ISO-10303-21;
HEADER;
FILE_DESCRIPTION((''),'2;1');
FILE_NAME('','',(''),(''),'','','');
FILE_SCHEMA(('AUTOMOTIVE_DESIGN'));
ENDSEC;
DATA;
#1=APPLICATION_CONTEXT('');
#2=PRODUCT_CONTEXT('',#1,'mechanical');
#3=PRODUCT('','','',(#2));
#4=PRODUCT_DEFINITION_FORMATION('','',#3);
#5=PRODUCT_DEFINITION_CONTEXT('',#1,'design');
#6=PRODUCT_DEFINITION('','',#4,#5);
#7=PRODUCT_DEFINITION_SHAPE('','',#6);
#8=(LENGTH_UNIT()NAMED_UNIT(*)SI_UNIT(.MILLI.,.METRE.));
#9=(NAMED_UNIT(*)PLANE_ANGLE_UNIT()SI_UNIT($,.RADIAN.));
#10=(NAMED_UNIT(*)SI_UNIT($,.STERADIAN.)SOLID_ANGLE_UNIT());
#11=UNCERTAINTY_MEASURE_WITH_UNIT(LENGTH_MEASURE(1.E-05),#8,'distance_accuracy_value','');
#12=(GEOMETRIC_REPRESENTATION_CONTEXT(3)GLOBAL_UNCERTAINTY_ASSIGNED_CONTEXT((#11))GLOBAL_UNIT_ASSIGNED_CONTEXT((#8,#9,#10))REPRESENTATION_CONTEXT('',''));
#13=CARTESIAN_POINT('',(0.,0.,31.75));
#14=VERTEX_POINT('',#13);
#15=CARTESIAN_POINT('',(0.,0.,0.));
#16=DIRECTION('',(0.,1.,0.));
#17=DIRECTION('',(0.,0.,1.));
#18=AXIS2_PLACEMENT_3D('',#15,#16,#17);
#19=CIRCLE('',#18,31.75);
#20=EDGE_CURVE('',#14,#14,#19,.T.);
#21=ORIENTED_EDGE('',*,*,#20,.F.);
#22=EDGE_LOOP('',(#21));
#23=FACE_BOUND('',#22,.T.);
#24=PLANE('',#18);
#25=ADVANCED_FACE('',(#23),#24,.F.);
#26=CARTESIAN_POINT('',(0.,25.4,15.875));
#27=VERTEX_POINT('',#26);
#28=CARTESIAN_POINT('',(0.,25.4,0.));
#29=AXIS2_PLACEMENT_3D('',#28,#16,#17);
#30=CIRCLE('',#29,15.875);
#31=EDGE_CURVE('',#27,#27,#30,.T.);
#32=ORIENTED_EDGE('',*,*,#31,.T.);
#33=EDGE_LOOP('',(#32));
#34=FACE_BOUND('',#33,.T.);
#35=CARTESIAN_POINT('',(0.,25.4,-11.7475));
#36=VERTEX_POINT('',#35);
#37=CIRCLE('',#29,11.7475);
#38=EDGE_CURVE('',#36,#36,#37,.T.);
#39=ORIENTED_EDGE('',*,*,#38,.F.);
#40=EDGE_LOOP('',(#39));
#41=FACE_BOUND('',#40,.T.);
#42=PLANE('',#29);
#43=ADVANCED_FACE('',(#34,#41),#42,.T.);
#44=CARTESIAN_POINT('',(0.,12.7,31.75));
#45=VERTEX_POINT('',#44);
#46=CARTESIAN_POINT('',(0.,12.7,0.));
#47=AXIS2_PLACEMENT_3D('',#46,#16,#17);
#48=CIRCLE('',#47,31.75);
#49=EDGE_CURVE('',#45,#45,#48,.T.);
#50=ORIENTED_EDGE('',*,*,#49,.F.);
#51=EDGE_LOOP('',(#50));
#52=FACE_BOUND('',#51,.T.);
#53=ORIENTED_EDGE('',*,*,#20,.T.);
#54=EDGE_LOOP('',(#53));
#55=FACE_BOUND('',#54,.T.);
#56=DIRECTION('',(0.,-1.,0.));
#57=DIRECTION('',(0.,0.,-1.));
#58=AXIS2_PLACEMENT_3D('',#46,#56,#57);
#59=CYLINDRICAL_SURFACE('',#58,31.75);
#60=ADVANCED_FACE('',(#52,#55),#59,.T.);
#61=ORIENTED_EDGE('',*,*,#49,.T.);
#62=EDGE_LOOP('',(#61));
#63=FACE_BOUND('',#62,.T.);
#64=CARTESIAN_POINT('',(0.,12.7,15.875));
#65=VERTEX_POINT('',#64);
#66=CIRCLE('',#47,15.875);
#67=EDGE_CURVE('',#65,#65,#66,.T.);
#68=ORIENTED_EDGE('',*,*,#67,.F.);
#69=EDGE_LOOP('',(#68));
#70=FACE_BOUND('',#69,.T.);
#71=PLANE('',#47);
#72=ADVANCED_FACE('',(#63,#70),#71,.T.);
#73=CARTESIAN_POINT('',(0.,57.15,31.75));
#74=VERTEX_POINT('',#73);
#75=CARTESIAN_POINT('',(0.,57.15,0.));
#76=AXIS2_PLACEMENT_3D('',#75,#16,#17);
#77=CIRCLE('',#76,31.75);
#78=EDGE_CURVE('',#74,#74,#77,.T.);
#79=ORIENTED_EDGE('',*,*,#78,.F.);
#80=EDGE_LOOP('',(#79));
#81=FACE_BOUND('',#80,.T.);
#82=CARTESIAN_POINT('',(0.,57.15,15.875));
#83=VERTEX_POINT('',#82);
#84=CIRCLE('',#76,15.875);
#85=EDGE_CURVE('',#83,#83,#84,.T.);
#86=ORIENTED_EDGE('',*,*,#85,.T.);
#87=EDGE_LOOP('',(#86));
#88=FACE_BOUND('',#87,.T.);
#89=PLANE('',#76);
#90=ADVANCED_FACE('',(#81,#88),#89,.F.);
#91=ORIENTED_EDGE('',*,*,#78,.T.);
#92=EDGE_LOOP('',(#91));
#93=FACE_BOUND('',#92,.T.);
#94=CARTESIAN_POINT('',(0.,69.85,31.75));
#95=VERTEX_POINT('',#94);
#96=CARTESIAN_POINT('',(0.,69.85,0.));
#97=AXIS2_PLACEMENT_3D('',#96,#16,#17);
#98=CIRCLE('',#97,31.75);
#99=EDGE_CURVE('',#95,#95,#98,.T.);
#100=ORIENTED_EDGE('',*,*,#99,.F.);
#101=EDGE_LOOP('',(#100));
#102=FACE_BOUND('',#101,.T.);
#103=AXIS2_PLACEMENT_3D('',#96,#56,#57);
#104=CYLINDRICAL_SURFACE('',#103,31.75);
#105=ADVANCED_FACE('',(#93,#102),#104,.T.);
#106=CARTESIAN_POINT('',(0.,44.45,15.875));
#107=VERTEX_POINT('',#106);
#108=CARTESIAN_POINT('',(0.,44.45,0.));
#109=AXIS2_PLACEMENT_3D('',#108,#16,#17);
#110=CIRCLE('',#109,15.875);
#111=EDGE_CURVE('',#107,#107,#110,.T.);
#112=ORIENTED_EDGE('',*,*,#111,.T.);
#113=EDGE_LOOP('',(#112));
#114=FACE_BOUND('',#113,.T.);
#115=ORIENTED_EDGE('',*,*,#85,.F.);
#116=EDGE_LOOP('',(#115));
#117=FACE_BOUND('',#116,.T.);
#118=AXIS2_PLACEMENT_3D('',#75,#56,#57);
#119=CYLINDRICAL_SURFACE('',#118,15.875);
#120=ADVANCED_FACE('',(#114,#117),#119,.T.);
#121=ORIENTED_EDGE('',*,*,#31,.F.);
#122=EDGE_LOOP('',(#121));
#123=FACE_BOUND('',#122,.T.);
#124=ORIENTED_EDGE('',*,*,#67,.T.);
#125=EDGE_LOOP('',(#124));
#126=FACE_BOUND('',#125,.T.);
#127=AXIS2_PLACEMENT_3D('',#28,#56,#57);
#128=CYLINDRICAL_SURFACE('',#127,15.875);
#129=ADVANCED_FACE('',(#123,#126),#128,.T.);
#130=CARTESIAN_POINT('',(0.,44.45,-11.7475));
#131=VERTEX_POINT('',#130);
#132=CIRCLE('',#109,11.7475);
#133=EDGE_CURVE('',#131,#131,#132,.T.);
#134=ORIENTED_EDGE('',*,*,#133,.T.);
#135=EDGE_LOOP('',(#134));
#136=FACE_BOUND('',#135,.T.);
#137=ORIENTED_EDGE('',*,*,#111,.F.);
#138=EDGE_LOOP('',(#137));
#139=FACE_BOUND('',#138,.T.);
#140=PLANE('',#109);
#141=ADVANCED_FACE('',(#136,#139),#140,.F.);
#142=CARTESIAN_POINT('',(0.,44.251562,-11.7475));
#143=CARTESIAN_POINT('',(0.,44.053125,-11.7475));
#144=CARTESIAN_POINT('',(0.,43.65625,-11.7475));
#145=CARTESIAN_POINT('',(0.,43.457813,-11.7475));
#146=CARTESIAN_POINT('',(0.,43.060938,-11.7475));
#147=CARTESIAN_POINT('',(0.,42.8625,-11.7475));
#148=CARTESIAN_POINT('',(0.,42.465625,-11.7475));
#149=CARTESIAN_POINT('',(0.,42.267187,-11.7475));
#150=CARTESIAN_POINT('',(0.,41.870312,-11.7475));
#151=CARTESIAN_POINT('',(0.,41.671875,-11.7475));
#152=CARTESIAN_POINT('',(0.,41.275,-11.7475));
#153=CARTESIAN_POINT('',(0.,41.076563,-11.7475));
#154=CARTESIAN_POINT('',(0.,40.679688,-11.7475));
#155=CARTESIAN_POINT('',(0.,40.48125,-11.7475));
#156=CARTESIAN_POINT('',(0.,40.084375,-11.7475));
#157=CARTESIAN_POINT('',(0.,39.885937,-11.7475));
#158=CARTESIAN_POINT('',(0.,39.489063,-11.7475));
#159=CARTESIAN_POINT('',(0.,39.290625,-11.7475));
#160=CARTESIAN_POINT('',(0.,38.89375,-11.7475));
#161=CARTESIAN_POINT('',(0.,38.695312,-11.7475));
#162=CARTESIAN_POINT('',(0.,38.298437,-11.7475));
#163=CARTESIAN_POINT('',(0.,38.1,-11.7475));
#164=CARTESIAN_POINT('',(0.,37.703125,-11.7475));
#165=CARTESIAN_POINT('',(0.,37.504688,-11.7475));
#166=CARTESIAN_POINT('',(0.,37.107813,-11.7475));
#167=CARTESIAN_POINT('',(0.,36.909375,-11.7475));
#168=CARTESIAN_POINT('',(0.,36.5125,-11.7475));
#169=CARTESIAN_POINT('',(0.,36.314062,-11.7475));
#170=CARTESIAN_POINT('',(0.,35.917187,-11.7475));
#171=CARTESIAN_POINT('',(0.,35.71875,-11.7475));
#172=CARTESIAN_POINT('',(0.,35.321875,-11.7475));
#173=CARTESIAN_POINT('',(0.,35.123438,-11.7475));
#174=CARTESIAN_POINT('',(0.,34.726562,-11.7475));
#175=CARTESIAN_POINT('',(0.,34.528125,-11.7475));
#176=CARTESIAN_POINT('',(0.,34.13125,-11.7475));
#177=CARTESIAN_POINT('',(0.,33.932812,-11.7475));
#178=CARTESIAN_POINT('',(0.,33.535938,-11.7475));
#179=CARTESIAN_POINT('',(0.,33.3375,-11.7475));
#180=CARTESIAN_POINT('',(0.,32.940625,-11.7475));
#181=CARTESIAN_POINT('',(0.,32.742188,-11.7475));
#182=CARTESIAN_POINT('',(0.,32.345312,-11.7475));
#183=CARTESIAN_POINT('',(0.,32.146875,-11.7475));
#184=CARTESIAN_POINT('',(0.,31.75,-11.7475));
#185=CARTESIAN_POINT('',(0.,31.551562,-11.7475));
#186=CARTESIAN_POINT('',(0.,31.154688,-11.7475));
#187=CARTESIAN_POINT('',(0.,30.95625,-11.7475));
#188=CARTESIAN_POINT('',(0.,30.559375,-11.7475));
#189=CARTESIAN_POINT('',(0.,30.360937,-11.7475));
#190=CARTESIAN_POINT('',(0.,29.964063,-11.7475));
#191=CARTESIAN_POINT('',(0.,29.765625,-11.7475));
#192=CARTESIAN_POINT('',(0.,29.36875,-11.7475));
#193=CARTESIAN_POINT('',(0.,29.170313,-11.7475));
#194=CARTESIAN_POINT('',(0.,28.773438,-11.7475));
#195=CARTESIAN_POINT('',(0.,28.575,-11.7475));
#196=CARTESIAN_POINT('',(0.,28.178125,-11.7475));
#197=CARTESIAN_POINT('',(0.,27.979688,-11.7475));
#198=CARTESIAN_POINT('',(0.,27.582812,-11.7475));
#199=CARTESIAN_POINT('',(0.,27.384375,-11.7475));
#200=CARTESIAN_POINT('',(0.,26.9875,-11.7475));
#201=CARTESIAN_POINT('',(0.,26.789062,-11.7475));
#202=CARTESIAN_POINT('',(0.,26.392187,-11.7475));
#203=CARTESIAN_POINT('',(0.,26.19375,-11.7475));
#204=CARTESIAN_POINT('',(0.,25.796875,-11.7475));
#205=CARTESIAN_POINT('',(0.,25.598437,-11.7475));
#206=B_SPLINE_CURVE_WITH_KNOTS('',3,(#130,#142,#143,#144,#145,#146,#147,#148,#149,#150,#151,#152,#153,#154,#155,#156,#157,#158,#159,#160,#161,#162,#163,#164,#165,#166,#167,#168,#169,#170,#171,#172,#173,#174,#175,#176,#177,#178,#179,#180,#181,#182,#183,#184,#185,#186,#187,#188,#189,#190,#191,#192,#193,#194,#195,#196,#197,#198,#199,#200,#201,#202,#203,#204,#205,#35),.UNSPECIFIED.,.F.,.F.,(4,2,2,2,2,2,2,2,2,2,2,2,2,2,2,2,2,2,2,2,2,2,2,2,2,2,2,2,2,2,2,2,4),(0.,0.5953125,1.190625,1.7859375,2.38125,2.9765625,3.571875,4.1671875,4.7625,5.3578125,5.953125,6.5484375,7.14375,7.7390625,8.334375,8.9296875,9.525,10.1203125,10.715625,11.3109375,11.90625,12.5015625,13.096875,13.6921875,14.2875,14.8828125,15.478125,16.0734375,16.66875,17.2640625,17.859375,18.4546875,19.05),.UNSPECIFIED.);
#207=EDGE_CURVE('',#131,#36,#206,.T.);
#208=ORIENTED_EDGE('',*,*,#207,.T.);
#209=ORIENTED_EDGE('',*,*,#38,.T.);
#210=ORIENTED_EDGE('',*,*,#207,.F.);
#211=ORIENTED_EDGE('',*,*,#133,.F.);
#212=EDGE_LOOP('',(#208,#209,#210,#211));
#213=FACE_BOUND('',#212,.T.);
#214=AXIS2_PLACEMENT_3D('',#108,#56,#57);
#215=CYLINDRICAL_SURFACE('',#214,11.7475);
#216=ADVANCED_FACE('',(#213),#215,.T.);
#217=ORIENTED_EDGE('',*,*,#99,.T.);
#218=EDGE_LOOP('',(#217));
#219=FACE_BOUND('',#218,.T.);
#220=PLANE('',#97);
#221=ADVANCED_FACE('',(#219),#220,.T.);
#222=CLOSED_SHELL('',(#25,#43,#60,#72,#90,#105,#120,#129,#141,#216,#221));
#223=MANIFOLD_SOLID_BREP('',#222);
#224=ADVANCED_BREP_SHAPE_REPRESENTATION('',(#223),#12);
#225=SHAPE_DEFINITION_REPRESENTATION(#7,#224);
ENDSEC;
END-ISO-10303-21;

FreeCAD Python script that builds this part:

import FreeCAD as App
import Part
import Sketcher
Q = App.Units.Quantity

doc = App.newDocument("Part")
params = doc.addObject("Spreadsheet::Sheet", "Params")
for row, (alias, value) in enumerate([
    ("sketch1_diameter", "2.5 in"),
    ("pad1_length", "0.5 in"),
    ("sketch2_diameter", "1.25 in"),
    ("pad2_length", "0.5 in"),
    ("sketch3_diameter", "0.925 in"),
    ("pad3_length", "0.75 in"),
    ("sketch4_diameter", "1.25 in"),
    ("pad4_length", "0.5 in"),
    ("sketch5_diameter", "2.5 in"),
    ("pad5_length", "0.5 in"),
], start=1):
    params.set(f"A{row}", alias)
    params.set(f"B{row}", "=" + value)
    params.setAlias(f"B{row}", alias)

body = doc.addObject("PartDesign::Body", "Body")

# Sketch on XZ plane
sketch1 = body.newObject("Sketcher::SketchObject", "Sketch")
sketch1.AttachmentSupport = (doc.getObject("XZ_Plane"), [""])
sketch1.MapMode = "FlatFace"
sketch1.addGeometry(Part.Circle(App.Vector(0, 0, 0), App.Vector(0, 0, 1), 32), False)
sketch1.addConstraint([
    Sketcher.Constraint("Coincident", 0, 3, -1, 1),
    Sketcher.Constraint("Diameter", 0, Q("2.5 in")),
])
sketch1.setExpression("Constraints[1]", "Params.sketch1_diameter")
pad1 = body.newObject("PartDesign::Pad", "Pad")
pad1.Profile = sketch1
pad1.setExpression("Length", "Params.pad1_length")
pad1.Reversed = True

# Sketch on XZ plane
sketch2 = body.newObject("Sketcher::SketchObject", "Sketch001")
sketch2.AttachmentSupport = (doc.getObject("XZ_Plane"), [""])
sketch2.MapMode = "FlatFace"
sketch2.AttachmentOffset = App.Placement(App.Vector(0, 0, -0.5 * 25.4), App.Rotation())
sketch2.addGeometry(Part.Circle(App.Vector(0, 0, 0), App.Vector(0, 0, 1), 16), False)
sketch2.addConstraint([
    Sketcher.Constraint("Coincident", 0, 3, -1, 1),
    Sketcher.Constraint("Diameter", 0, Q("1.25 in")),
])
sketch2.setExpression("Constraints[1]", "Params.sketch2_diameter")
pad2 = body.newObject("PartDesign::Pad", "Pad001")
pad2.Profile = sketch2
pad2.setExpression("Length", "Params.pad2_length")
pad2.Reversed = True

# Sketch on XZ plane
sketch3 = body.newObject("Sketcher::SketchObject", "Sketch002")
sketch3.AttachmentSupport = (doc.getObject("XZ_Plane"), [""])
sketch3.MapMode = "FlatFace"
sketch3.AttachmentOffset = App.Placement(App.Vector(0, 0, -1 * 25.4), App.Rotation())
sketch3.addGeometry(Part.Circle(App.Vector(0, 0, 0), App.Vector(0, 0, 1), 12), False)
sketch3.addConstraint([
    Sketcher.Constraint("Coincident", 0, 3, -1, 1),
    Sketcher.Constraint("Diameter", 0, Q("0.925 in")),
])
sketch3.setExpression("Constraints[1]", "Params.sketch3_diameter")
pad3 = body.newObject("PartDesign::Pad", "Pad002")
pad3.Profile = sketch3
pad3.setExpression("Length", "Params.pad3_length")
pad3.Reversed = True

# Sketch on XZ plane
sketch4 = body.newObject("Sketcher::SketchObject", "Sketch003")
sketch4.AttachmentSupport = (doc.getObject("XZ_Plane"), [""])
sketch4.MapMode = "FlatFace"
sketch4.AttachmentOffset = App.Placement(App.Vector(0, 0, -1.75 * 25.4), App.Rotation())
sketch4.addGeometry(Part.Circle(App.Vector(0, 0, 0), App.Vector(0, 0, 1), 16), False)
sketch4.addConstraint([
    Sketcher.Constraint("Coincident", 0, 3, -1, 1),
    Sketcher.Constraint("Diameter", 0, Q("1.25 in")),
])
sketch4.setExpression("Constraints[1]", "Params.sketch4_diameter")
pad4 = body.newObject("PartDesign::Pad", "Pad003")
pad4.Profile = sketch4
pad4.setExpression("Length", "Params.pad4_length")
pad4.Reversed = True

# Sketch on XZ plane
sketch5 = body.newObject("Sketcher::SketchObject", "Sketch004")
sketch5.AttachmentSupport = (doc.getObject("XZ_Plane"), [""])
sketch5.MapMode = "FlatFace"
sketch5.AttachmentOffset = App.Placement(App.Vector(0, 0, -2.25 * 25.4), App.Rotation())
sketch5.addGeometry(Part.Circle(App.Vector(0, 0, 0), App.Vector(0, 0, 1), 32), False)
sketch5.addConstraint([
    Sketcher.Constraint("Coincident", 0, 3, -1, 1),
    Sketcher.Constraint("Diameter", 0, Q("2.5 in")),
])
sketch5.setExpression("Constraints[1]", "Params.sketch5_diameter")
pad5 = body.newObject("PartDesign::Pad", "Pad004")
pad5.Profile = sketch5
pad5.setExpression("Length", "Params.pad5_length")
pad5.Reversed = True

doc.recompute()
